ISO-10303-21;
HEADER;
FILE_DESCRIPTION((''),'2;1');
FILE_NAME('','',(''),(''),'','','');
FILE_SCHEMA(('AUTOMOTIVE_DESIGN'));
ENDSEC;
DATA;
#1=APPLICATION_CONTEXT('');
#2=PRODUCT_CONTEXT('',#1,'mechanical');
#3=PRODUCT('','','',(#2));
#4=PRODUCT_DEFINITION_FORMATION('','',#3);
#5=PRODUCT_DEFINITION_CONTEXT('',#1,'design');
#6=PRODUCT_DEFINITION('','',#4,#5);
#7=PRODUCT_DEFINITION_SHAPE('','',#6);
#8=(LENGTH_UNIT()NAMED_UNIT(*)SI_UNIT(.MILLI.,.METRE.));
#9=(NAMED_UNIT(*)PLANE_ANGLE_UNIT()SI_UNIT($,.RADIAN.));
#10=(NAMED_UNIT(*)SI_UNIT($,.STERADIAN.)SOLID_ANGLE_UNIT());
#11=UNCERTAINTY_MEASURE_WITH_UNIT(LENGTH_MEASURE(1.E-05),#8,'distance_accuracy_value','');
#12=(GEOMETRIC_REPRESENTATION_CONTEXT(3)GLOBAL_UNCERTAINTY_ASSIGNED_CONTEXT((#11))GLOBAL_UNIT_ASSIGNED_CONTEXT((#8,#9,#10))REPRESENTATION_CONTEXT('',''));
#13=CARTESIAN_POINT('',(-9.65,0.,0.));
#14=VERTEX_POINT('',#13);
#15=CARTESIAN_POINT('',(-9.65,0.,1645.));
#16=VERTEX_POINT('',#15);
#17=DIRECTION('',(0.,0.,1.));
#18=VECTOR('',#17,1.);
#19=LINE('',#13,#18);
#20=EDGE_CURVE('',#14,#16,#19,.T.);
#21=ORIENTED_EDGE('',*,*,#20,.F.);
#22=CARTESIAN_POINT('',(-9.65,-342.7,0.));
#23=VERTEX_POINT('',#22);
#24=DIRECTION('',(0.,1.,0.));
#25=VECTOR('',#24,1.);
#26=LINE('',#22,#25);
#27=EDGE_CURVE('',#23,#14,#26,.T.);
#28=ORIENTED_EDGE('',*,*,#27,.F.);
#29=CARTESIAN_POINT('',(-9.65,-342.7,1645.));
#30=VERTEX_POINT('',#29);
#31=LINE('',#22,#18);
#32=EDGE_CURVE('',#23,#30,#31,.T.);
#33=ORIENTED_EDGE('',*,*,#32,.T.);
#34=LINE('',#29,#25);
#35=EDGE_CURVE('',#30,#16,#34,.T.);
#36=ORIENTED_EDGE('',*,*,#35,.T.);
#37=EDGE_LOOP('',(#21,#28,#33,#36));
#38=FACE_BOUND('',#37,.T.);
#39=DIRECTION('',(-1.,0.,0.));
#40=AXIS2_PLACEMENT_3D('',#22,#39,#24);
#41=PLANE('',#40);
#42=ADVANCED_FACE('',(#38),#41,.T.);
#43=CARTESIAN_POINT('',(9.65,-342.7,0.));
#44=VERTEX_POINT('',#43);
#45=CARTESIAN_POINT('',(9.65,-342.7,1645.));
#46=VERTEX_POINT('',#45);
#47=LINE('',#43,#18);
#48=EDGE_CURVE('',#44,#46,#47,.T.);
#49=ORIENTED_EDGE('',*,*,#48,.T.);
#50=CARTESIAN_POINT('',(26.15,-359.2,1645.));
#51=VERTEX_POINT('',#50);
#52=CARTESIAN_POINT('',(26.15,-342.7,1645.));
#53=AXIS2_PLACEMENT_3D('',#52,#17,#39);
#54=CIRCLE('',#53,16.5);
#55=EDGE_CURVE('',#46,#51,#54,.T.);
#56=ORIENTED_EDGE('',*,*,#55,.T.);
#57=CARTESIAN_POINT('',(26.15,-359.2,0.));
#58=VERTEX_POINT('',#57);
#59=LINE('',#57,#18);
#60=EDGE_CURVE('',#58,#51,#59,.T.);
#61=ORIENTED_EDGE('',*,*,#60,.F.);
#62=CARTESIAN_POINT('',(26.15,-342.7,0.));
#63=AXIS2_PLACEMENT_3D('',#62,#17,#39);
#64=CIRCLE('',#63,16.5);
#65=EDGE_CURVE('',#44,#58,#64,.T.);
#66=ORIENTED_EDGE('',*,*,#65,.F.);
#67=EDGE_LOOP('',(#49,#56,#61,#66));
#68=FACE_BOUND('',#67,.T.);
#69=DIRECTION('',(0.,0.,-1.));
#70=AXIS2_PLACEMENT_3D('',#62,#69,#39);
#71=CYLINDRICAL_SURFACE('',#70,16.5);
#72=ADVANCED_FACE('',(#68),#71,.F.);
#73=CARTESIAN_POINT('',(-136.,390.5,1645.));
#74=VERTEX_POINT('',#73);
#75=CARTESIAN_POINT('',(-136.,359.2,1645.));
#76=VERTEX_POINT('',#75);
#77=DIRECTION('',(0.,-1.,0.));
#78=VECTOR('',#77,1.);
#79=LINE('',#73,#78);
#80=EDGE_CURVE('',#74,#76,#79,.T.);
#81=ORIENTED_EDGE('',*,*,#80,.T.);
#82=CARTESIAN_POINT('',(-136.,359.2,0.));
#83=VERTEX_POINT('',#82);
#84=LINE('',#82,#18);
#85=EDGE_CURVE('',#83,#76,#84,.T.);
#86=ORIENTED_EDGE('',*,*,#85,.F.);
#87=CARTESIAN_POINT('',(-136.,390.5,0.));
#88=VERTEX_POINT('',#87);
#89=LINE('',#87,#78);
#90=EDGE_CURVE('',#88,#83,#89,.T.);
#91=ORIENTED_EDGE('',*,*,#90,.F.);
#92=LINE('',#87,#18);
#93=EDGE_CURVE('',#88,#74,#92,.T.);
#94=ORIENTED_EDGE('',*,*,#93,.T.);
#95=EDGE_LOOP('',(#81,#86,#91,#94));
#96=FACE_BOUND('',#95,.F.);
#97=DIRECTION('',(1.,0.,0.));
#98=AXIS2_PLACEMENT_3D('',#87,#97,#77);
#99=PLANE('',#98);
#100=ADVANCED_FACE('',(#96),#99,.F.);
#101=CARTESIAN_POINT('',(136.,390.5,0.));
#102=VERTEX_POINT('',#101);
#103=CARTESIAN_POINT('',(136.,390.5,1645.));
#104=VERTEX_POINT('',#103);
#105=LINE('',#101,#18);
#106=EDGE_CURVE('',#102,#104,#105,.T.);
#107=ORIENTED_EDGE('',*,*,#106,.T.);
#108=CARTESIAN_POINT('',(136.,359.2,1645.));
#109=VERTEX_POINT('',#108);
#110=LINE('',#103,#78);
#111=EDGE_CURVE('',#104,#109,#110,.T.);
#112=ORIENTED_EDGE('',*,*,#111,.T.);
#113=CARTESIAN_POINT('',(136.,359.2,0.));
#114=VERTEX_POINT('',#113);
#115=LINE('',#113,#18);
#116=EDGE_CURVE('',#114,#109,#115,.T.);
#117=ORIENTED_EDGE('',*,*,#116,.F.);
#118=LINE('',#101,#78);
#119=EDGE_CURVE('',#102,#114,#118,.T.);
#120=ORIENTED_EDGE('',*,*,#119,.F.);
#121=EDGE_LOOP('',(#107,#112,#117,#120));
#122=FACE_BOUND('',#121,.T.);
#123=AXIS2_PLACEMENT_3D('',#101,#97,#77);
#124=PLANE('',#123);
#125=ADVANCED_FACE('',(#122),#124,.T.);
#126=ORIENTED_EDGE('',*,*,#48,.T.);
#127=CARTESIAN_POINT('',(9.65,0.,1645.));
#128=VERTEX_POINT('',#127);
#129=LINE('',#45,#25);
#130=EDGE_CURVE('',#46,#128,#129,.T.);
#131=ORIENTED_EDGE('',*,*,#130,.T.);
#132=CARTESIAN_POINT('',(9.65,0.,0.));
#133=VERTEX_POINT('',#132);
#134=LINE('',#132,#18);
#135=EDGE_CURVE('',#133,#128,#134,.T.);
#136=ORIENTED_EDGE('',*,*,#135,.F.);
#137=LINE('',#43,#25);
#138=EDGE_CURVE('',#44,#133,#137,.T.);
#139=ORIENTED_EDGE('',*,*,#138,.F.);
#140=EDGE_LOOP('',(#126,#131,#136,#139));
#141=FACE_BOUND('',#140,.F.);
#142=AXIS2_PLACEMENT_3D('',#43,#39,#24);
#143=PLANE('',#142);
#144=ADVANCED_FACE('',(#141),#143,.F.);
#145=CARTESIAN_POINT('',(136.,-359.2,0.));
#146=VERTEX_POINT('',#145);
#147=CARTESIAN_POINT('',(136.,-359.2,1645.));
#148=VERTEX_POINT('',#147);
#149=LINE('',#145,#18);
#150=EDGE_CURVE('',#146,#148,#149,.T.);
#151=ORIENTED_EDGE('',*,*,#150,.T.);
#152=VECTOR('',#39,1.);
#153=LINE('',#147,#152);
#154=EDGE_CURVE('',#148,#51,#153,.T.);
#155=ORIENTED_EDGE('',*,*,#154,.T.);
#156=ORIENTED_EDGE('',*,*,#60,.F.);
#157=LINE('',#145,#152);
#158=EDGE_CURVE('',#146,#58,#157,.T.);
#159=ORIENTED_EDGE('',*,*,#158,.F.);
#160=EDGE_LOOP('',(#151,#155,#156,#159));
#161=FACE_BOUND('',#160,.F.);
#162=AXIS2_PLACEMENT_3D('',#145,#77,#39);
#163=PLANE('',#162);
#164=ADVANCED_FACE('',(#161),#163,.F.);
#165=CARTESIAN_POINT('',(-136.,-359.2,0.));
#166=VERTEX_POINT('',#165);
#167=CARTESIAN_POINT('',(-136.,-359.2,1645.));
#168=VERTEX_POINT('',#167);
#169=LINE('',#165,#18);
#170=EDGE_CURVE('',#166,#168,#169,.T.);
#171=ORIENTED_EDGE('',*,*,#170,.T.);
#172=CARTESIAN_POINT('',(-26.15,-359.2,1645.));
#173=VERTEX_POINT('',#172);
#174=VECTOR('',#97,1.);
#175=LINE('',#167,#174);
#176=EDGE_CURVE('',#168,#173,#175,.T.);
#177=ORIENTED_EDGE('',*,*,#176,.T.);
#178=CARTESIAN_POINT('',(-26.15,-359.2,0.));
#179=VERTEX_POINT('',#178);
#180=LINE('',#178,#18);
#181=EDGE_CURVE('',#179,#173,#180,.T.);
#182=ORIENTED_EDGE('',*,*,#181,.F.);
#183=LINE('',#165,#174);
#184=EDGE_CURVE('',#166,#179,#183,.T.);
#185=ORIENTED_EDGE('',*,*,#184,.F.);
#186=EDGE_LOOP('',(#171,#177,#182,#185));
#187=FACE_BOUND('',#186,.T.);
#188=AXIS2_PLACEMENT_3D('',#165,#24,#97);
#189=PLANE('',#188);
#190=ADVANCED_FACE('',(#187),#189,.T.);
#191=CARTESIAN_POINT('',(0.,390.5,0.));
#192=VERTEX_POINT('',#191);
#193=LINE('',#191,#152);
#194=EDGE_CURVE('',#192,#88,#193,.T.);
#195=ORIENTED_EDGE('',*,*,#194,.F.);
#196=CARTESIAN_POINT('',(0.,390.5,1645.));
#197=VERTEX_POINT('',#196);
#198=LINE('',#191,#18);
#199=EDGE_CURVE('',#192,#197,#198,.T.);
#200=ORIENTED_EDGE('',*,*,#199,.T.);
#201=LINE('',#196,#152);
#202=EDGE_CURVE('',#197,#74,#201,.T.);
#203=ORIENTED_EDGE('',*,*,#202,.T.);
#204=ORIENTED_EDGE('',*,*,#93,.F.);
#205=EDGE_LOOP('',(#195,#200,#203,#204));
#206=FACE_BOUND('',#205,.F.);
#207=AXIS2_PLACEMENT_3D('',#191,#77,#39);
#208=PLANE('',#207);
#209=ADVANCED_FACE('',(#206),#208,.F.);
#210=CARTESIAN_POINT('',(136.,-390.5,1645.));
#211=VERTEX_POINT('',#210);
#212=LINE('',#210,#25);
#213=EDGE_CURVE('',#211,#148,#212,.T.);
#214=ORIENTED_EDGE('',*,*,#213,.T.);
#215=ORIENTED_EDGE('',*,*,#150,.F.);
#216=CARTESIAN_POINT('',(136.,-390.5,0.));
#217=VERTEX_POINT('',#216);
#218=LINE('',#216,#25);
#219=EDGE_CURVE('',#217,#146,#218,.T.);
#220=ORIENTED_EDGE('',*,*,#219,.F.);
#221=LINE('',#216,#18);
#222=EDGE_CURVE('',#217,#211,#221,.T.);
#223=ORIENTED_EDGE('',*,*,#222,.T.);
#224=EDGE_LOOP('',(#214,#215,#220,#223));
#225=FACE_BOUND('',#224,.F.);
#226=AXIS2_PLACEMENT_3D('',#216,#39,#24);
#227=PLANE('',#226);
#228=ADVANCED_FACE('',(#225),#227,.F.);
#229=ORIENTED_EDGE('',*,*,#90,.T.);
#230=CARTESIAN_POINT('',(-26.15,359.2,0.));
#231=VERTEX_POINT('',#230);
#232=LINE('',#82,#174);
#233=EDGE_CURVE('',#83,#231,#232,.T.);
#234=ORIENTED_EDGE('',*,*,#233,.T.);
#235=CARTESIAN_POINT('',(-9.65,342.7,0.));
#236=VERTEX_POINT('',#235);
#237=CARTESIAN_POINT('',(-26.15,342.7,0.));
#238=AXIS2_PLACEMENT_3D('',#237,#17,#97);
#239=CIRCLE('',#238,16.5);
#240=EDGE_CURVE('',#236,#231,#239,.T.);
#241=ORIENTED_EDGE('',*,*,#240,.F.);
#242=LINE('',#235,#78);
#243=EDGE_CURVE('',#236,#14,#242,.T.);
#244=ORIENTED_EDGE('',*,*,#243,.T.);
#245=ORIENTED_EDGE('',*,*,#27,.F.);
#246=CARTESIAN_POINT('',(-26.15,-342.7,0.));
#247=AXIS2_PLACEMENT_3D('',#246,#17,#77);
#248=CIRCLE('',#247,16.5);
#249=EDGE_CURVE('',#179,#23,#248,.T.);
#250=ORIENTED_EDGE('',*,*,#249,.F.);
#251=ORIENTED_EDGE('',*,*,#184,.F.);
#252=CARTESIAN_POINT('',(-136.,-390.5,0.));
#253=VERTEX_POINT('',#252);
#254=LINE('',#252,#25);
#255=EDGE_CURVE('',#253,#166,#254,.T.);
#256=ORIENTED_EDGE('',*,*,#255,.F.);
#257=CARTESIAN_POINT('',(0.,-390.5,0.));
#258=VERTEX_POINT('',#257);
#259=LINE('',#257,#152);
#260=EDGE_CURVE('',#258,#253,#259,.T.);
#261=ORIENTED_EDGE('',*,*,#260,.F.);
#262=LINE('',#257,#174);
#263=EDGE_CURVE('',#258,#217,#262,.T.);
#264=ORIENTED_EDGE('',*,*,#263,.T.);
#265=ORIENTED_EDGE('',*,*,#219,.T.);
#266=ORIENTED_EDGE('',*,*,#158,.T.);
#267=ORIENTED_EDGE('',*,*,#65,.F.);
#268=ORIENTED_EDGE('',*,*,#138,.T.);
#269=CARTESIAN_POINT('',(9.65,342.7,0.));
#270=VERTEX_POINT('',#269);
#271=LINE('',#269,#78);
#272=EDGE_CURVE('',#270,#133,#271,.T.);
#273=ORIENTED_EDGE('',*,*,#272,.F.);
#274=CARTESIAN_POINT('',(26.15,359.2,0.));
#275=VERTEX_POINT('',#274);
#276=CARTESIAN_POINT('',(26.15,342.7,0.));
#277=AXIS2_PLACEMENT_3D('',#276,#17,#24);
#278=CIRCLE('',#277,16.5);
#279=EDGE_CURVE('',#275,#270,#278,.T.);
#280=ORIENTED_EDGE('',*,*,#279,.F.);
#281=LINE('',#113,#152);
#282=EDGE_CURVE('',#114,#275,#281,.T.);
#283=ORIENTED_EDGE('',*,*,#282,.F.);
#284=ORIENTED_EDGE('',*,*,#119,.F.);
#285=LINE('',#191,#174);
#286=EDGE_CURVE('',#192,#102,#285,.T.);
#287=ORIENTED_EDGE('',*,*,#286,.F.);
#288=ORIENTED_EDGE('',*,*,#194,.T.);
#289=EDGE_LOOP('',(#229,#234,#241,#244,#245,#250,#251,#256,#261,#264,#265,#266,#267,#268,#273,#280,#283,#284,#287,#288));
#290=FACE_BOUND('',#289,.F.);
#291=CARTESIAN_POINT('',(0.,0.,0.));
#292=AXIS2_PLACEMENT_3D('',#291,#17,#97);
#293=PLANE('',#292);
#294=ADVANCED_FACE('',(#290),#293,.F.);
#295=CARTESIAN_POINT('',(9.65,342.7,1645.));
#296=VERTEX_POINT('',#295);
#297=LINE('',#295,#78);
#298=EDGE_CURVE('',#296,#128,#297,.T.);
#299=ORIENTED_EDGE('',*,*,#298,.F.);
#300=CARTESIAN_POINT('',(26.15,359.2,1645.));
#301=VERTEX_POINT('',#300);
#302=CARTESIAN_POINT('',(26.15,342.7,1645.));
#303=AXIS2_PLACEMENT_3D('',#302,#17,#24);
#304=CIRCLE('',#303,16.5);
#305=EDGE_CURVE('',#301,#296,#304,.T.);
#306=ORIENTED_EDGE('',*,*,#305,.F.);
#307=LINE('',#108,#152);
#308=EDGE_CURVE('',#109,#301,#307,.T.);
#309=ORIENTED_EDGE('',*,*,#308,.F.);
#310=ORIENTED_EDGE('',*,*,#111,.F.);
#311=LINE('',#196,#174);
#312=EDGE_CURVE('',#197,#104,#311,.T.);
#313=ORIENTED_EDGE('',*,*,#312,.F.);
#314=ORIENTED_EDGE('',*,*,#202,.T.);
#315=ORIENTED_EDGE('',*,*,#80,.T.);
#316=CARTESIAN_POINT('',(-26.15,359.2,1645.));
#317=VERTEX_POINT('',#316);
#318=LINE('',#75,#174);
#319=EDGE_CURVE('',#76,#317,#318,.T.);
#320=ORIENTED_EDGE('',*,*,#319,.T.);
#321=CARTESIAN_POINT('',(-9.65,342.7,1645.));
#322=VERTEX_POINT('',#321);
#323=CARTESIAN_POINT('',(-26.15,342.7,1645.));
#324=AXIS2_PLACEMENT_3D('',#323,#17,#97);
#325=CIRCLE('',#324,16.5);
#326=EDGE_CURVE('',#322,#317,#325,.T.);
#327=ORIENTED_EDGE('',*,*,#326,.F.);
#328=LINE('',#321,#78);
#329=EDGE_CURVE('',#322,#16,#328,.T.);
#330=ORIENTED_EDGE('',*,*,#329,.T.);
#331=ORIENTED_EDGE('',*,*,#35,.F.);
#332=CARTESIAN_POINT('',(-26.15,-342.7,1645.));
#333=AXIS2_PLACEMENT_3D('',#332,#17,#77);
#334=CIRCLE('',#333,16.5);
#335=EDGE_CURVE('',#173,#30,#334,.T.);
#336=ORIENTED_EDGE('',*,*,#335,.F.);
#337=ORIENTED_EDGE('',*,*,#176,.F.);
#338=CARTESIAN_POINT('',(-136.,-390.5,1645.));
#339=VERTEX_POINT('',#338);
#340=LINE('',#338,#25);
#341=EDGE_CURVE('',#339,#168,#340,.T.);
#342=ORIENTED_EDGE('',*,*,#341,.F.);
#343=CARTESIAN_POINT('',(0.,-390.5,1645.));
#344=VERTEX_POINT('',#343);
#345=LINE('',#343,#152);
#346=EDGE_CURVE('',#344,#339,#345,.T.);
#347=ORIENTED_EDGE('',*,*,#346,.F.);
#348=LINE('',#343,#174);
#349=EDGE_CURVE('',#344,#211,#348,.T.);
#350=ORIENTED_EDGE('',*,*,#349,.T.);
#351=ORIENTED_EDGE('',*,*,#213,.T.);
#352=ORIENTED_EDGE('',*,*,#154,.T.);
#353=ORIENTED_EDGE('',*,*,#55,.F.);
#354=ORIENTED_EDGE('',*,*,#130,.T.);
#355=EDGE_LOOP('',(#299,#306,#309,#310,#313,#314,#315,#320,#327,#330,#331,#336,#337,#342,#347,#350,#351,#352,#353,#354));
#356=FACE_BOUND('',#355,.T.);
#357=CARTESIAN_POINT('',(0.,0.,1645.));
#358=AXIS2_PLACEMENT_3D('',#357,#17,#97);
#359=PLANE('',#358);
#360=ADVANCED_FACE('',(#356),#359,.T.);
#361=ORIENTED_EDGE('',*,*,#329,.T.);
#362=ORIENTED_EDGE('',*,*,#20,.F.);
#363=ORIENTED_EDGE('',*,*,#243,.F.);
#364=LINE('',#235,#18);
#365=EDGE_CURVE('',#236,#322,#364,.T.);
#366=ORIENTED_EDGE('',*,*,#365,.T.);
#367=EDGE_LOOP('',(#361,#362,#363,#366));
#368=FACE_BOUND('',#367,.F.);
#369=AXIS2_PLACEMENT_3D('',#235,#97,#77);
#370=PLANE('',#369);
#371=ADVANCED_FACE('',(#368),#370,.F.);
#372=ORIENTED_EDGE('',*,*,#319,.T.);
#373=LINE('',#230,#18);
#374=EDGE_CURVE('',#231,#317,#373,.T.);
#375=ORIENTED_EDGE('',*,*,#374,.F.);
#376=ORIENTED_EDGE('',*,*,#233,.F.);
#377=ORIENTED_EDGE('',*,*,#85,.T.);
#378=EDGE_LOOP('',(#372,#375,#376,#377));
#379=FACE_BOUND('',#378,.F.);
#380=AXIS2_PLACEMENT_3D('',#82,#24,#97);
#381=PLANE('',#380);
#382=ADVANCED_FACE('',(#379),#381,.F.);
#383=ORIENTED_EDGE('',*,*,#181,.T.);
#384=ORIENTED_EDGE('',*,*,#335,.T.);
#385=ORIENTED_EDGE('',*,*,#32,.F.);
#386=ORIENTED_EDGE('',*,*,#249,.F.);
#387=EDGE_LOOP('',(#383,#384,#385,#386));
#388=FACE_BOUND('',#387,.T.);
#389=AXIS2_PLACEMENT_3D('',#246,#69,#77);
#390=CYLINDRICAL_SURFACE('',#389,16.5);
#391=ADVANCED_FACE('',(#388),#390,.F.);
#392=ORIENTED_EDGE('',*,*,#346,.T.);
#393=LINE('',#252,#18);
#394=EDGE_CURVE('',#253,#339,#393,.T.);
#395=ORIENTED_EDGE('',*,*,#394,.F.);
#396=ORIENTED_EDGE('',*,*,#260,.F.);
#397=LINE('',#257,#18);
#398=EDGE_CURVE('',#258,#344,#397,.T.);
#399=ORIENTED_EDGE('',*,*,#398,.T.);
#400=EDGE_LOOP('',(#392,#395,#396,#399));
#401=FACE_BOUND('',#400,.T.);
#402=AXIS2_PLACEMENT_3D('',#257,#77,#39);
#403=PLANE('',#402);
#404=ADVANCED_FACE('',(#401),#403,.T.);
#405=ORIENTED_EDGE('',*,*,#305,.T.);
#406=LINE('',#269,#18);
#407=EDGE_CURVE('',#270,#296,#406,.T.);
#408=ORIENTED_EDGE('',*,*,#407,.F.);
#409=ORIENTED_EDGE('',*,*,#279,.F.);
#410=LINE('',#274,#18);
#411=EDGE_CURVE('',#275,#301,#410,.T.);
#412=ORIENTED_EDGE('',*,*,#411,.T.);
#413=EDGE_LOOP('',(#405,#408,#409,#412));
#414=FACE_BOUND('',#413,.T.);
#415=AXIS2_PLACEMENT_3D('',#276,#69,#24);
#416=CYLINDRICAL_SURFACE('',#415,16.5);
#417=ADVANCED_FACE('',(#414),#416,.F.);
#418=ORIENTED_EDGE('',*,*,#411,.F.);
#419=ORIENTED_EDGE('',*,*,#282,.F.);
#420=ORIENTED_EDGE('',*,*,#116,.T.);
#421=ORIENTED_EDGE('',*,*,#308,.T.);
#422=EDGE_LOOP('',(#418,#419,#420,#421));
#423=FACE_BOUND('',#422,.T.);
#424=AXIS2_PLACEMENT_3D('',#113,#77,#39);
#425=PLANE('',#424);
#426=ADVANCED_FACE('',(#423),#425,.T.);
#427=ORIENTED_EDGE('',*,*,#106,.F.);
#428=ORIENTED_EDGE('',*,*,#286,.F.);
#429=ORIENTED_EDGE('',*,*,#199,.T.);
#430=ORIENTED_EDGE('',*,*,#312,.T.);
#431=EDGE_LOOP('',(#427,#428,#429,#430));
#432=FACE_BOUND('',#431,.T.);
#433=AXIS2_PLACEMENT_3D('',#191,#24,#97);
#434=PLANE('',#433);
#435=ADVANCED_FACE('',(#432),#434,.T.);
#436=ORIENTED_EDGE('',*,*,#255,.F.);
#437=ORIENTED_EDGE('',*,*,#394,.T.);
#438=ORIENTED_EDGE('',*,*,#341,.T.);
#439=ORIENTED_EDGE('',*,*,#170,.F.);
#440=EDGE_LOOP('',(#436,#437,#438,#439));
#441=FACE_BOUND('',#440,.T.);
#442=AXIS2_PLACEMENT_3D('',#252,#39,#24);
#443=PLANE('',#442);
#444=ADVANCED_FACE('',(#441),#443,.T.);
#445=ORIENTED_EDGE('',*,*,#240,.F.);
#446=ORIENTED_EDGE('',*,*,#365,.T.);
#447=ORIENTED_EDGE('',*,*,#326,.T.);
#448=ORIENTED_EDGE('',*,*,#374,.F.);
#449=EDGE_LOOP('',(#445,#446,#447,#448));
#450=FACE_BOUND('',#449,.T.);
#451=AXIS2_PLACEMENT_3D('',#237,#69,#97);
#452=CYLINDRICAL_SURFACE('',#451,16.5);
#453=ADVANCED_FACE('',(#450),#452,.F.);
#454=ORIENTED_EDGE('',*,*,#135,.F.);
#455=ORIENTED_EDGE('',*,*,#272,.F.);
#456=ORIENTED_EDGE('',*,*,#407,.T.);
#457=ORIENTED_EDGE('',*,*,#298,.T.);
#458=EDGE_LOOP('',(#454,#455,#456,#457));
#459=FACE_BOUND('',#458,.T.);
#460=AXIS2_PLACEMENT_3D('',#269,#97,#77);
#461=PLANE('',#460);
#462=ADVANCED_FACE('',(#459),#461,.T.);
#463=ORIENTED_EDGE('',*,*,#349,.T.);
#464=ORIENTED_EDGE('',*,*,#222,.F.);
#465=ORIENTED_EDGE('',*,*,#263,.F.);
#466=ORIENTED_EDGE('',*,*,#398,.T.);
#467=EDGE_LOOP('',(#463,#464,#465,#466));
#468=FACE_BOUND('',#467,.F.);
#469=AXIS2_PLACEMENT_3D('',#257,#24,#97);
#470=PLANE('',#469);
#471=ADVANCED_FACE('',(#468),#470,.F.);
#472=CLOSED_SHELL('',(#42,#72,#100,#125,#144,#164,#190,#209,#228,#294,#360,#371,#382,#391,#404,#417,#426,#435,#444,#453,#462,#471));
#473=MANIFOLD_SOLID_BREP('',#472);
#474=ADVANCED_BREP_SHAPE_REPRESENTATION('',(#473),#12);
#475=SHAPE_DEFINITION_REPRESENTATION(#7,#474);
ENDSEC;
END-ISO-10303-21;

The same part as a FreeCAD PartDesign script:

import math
import FreeCAD as App
import Part
import Sketcher

V = App.Vector

doc = App.newDocument("Part")
body = doc.addObject("PartDesign::Body", "Body")

# Sketch on XY plane
sketch1 = body.newObject("Sketcher::SketchObject", "Sketch")
sketch1.AttachmentSupport = (doc.getObject("XY_Plane"), [""])
sketch1.MapMode = "FlatFace"
sketch1.addGeometry([
    Part.LineSegment(V(-136, -359.2, 0), V(-136, -390.5, 0)),  # 0
    Part.LineSegment(V(-136, -390.5, 0), V(136, -390.5, 0)),  # 1
    Part.LineSegment(V(136, -390.5, 0), V(136, -359.2, 0)),  # 2
    Part.LineSegment(V(136, -359.2, 0), V(26.15, -359.2, 0)),  # 3
    Part.ArcOfCircle(Part.Circle(V(26.15, -342.7, 0), V(0, 0, 1), 16.5), math.radians(180), math.radians(270)),  # 4
    Part.LineSegment(V(9.65, -342.7, 0), V(9.65, 342.7, 0)),  # 5
    Part.ArcOfCircle(Part.Circle(V(26.15, 342.7, 0), V(0, 0, 1), 16.5), math.radians(90), math.radians(180)),  # 6
    Part.LineSegment(V(26.15, 359.2, 0), V(136, 359.2, 0)),  # 7
    Part.LineSegment(V(136, 359.2, 0), V(136, 390.5, 0)),  # 8
    Part.LineSegment(V(136, 390.5, 0), V(-136, 390.5, 0)),  # 9
    Part.LineSegment(V(-136, 390.5, 0), V(-136, 359.2, 0)),  # 10
    Part.LineSegment(V(-136, 359.2, 0), V(-26.15, 359.2, 0)),  # 11
    Part.ArcOfCircle(Part.Circle(V(-26.15, 342.7, 0), V(0, 0, 1), 16.5), math.radians(0), math.radians(90)),  # 12
    Part.LineSegment(V(-9.65, 342.7, 0), V(-9.65, -342.7, 0)),  # 13
    Part.ArcOfCircle(Part.Circle(V(-26.15, -342.7, 0), V(0, 0, 1), 16.5), math.radians(-90), math.radians(0)),  # 14
    Part.LineSegment(V(-26.15, -359.2, 0), V(-136, -359.2, 0)),  # 15
], False)
sketch1.addConstraint([
    Sketcher.Constraint("Coincident", 0, 2, 1, 1),
    Sketcher.Constraint("Coincident", 1, 2, 2, 1),
    Sketcher.Constraint("Coincident", 2, 2, 3, 1),
    Sketcher.Constraint("Tangent", 3, 2, 4, 2),
    Sketcher.Constraint("Tangent", 4, 1, 5, 1),
    Sketcher.Constraint("Tangent", 5, 2, 6, 2),
    Sketcher.Constraint("Tangent", 6, 1, 7, 1),
    Sketcher.Constraint("Coincident", 7, 2, 8, 1),
    Sketcher.Constraint("Coincident", 8, 2, 9, 1),
    Sketcher.Constraint("Coincident", 9, 2, 10, 1),
    Sketcher.Constraint("Coincident", 10, 2, 11, 1),
    Sketcher.Constraint("Tangent", 11, 2, 12, 2),
    Sketcher.Constraint("Tangent", 12, 1, 13, 1),
    Sketcher.Constraint("Tangent", 13, 2, 14, 2),
    Sketcher.Constraint("Tangent", 14, 1, 15, 1),
    Sketcher.Constraint("Coincident", 15, 2, 0, 1),
    Sketcher.Constraint("Vertical", 0),
    Sketcher.Constraint("Horizontal", 1),
    Sketcher.Constraint("Vertical", 2),
    Sketcher.Constraint("Horizontal", 3),
    Sketcher.Constraint("Vertical", 5),
    Sketcher.Constraint("Horizontal", 7),
    Sketcher.Constraint("Vertical", 8),
    Sketcher.Constraint("Horizontal", 9),
    Sketcher.Constraint("Vertical", 10),
    Sketcher.Constraint("Horizontal", 11),
    Sketcher.Constraint("Vertical", 13),
    Sketcher.Constraint("Horizontal", 15),
    Sketcher.Constraint("Equal", 4, 6),
    Sketcher.Constraint("Equal", 6, 12),
    Sketcher.Constraint("Equal", 12, 14),
    Sketcher.Constraint("Symmetric", 4, 3, 12, 3, -1, 1),
    Sketcher.Constraint("Symmetric", 0, 2, 8, 2, -1, 1),
    Sketcher.Constraint("Symmetric", 7, 2, 10, 2, -2),
    Sketcher.Constraint("Symmetric", 2, 2, 15, 2, -2),
    Sketcher.Constraint("Radius", 4, 16.5),
    Sketcher.Constraint("DistanceY", 0, 2, 0, 1, 31.3),
    Sketcher.Constraint("DistanceX", 0, 2, -1, 1, 136.0),
    Sketcher.Constraint("DistanceY", 0, 2, -1, 1, 390.5),
    Sketcher.Constraint("DistanceX", -1, 1, 4, 1, 9.65),
])
pad1 = body.newObject("PartDesign::Pad", "Pad")
pad1.Profile = sketch1
pad1.Length = 1645

doc.recompute()
